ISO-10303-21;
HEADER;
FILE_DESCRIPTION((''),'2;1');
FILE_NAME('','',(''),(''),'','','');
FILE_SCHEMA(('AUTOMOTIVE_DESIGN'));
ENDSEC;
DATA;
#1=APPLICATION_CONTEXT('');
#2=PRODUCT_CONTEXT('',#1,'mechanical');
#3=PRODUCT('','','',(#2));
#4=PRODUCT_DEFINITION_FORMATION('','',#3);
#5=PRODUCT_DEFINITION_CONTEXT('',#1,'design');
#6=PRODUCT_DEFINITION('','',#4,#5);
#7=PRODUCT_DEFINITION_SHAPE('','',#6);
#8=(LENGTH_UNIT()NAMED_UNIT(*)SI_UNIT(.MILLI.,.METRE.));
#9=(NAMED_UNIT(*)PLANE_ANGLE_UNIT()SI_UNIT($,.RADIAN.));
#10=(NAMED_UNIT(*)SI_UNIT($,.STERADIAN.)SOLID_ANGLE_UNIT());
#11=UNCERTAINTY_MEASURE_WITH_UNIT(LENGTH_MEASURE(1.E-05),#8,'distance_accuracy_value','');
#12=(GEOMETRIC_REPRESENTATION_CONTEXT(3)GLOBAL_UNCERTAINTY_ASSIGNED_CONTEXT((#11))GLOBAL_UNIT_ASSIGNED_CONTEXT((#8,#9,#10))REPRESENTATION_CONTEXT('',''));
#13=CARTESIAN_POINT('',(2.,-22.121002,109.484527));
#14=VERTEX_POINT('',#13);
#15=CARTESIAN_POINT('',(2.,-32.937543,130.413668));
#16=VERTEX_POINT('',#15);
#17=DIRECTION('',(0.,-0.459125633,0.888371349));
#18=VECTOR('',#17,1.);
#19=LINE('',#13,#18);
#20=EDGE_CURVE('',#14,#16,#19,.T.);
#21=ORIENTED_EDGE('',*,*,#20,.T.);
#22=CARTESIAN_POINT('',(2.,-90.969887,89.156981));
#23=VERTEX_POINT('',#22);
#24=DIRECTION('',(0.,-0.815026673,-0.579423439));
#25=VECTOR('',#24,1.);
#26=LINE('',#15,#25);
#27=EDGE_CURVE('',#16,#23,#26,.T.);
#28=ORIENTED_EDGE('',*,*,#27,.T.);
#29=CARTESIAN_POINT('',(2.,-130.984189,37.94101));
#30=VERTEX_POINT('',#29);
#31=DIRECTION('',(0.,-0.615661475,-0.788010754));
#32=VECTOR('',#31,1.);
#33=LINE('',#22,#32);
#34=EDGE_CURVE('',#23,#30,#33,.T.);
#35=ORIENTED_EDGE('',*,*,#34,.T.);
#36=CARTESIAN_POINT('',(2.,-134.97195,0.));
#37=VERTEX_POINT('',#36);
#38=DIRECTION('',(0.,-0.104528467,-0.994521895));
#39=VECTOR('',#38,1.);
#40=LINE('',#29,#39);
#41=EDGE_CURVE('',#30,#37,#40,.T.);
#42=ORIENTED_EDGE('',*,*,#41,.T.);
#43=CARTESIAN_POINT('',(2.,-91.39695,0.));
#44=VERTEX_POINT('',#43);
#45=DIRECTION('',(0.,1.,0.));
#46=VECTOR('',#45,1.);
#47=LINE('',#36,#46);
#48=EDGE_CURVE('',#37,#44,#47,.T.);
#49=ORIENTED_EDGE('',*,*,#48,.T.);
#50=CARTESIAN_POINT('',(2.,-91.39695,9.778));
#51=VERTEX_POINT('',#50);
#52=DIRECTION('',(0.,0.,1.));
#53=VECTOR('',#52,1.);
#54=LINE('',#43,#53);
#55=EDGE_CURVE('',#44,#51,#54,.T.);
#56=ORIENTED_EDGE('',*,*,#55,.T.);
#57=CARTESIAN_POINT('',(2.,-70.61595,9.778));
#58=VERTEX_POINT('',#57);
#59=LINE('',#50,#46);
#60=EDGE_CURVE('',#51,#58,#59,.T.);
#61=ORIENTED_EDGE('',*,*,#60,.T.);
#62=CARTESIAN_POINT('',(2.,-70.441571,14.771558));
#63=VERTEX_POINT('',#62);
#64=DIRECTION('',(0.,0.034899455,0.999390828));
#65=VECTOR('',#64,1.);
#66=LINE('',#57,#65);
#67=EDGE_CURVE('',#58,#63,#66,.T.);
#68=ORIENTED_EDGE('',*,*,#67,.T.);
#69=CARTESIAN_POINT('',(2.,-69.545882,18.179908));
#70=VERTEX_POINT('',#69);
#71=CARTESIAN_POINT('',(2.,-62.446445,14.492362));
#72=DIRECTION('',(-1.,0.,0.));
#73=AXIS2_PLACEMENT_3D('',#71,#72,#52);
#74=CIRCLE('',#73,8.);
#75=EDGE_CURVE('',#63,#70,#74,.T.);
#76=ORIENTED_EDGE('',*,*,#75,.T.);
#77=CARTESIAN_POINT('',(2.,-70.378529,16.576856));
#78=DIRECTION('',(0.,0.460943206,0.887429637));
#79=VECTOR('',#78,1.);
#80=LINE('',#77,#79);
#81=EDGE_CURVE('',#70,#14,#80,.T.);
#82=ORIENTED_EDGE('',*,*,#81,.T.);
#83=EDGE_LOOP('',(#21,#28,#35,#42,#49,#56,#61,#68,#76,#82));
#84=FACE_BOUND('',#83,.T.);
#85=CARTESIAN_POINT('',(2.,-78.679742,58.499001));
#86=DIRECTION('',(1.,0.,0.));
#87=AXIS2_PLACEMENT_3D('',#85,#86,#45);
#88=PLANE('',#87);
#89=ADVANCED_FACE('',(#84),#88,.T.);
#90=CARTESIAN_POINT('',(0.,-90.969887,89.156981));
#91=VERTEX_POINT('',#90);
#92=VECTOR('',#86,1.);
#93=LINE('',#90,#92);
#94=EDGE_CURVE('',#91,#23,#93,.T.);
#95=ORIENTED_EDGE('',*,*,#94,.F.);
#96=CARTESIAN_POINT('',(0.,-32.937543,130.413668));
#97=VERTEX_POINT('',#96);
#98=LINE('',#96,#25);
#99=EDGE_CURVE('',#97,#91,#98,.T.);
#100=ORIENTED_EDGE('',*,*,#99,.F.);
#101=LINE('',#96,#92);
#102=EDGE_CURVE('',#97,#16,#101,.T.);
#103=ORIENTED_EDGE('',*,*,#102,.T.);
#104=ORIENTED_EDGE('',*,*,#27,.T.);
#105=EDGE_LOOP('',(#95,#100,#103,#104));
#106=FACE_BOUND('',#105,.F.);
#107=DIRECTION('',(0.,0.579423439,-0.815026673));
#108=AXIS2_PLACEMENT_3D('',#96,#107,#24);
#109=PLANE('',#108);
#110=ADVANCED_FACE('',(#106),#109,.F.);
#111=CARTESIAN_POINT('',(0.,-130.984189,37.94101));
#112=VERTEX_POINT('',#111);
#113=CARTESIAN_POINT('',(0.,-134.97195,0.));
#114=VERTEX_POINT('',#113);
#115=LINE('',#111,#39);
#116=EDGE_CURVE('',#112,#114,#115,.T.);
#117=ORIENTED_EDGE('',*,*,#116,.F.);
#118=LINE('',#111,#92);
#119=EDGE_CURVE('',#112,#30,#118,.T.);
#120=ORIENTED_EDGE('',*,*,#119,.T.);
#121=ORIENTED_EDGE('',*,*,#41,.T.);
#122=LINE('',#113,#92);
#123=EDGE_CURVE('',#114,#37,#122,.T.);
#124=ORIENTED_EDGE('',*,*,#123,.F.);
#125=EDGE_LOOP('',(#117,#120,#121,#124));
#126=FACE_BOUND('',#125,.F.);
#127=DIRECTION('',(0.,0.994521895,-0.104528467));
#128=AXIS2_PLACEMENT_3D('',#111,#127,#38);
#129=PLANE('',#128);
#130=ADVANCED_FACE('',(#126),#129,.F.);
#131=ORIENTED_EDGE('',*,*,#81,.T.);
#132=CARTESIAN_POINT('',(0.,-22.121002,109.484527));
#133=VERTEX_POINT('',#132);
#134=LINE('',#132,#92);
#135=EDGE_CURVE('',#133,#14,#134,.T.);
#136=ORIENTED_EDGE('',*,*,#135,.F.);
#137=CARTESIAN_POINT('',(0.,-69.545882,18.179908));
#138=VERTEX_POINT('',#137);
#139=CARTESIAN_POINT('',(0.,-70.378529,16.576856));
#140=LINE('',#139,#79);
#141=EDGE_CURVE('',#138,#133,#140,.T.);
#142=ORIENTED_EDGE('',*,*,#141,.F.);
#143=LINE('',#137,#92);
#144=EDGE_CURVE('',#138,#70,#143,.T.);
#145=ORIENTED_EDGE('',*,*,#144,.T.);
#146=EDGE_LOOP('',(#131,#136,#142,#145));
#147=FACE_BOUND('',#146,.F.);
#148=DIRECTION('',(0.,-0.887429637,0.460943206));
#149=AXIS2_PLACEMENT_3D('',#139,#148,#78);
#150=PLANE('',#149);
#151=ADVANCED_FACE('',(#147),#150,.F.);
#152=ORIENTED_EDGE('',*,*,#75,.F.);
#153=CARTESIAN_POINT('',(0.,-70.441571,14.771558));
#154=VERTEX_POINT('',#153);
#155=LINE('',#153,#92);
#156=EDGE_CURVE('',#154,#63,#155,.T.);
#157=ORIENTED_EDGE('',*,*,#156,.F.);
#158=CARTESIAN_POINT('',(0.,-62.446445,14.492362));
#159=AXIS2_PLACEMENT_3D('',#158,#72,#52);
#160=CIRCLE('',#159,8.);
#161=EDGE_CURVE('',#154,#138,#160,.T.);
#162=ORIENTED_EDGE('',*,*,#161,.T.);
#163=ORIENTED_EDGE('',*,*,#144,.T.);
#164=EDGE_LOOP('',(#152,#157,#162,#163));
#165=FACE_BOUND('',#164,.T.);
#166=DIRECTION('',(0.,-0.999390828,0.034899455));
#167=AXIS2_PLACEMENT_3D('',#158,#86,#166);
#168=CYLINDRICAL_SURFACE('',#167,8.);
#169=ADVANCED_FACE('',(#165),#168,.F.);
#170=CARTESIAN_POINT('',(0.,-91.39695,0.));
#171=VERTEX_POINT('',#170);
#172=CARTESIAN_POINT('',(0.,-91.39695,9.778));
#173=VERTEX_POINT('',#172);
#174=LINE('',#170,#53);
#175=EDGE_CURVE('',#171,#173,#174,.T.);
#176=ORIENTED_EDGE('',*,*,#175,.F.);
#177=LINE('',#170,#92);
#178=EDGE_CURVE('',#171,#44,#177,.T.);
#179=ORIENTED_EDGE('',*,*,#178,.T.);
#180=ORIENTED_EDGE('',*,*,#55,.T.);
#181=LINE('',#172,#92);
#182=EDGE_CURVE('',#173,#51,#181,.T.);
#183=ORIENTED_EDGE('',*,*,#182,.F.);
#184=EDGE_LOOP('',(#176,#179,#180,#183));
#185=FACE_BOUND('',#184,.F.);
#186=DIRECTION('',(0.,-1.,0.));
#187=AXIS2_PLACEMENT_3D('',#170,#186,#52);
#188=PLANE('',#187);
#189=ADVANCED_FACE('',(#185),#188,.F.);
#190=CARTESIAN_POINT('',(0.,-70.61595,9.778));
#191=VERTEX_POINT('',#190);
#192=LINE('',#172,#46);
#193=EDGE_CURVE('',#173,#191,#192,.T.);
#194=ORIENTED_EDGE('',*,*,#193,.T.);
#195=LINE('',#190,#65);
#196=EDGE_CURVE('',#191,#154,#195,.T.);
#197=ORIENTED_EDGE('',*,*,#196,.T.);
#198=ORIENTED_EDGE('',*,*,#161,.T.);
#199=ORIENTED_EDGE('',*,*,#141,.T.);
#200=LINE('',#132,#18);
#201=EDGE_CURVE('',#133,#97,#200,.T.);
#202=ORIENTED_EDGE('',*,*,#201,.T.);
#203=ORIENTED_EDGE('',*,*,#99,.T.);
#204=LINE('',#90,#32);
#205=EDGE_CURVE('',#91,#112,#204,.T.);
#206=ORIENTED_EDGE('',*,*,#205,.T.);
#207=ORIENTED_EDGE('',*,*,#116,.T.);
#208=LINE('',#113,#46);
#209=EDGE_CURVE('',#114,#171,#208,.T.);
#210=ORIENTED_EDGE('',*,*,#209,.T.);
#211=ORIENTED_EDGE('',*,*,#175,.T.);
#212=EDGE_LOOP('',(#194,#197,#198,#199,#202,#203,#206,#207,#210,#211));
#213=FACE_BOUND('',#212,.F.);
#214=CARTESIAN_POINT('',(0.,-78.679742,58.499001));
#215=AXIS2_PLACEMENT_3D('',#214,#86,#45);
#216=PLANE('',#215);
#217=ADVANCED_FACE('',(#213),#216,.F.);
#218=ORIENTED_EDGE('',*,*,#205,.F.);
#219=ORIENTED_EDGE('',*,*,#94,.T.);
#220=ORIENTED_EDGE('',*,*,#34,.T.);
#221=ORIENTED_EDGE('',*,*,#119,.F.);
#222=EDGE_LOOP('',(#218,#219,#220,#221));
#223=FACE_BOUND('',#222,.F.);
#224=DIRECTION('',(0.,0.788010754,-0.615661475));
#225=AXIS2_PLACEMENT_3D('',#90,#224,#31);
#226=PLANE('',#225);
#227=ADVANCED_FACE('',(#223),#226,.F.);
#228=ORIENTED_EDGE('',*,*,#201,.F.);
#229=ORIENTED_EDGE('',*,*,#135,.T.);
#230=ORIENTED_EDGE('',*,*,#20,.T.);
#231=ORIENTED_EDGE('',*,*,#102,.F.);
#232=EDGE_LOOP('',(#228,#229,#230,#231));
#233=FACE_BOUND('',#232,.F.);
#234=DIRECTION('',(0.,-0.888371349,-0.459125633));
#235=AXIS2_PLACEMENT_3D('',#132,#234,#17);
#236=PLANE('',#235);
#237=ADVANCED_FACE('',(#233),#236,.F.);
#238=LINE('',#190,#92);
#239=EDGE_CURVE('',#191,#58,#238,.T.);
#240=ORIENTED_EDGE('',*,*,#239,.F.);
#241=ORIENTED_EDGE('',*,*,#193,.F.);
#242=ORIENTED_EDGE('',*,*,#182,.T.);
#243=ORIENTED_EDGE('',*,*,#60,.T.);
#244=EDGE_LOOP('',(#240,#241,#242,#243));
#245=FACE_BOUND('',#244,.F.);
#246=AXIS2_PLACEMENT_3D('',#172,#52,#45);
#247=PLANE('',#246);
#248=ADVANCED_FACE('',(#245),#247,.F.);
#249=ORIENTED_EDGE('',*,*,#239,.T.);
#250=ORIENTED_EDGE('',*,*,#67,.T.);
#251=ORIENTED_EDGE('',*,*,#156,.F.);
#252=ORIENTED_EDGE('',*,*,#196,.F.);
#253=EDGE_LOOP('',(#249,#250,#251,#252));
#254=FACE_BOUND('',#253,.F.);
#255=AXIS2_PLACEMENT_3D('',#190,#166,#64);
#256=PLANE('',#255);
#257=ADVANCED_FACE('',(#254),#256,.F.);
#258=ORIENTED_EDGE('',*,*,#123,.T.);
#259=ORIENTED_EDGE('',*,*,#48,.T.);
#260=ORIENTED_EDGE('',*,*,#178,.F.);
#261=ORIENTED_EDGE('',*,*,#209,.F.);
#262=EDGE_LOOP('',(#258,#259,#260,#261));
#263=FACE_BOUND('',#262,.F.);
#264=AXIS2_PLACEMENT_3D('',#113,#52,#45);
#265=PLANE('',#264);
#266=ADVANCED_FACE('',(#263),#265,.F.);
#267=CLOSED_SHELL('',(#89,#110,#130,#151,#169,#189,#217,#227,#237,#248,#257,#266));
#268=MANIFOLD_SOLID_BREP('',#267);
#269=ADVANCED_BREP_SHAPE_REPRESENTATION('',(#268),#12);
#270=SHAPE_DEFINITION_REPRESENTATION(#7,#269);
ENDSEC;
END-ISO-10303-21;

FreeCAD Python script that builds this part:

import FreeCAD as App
import Part
import Sketcher

V = App.Vector
Q = App.Units.Quantity


def edges_at(feature, points):
    """Names of the edges that pass closest to the given points."""
    edges = feature.Shape.Edges
    near = lambda p: min(range(len(edges)), key=lambda i: edges[i].distToShape(Part.Vertex(*p))[0])
    return sorted({f"Edge{near(p) + 1}" for p in points})


def add_polygon(sketch, points):
    """Adds a closed chain of lines whose ends are joined by coincident constraints."""
    first, n = sketch.GeometryCount, len(points)
    for a, b in zip(points, points[1:] + points[:1]):
        sketch.addGeometry(Part.LineSegment(App.Vector(*a, 0), App.Vector(*b, 0)), False)
    for i in range(n):
        sketch.addConstraint(Sketcher.Constraint("Coincident", first + i, 2, first + (i + 1) % n, 1))

doc = App.newDocument("Part")
body = doc.addObject("PartDesign::Body", "Body")

# Sketch on YZ plane
sketch1 = body.newObject("Sketcher::SketchObject", "Sketch")
sketch1.AttachmentSupport = (doc.getObject("YZ_Plane"), [""])
sketch1.MapMode = "FlatFace"
add_polygon(sketch1, [(-131, 38), (-135, 0), (-91, 0), (-91, 10), (-71, 10), (-70, 17), (-22, 109), (-33, 130), (-91, 89)])  # lines 0-8
sketch1.addConstraint([
    Sketcher.Constraint("Horizontal", 1),
    Sketcher.Constraint("Vertical", 2),
    Sketcher.Constraint("Horizontal", 3),
    Sketcher.Constraint("PointOnObject", 0, 2, -1),
    Sketcher.Constraint("Angle", 0, Q("-96 deg")),
    Sketcher.Constraint("Angle", 4, Q("88.000002 deg")),
    Sketcher.Constraint("Angle", 8, Q("-128 deg")),
    Sketcher.Constraint("Angle", 7, Q("-144.589999 deg")),
    Sketcher.Constraint("Distance", 0, Q("38.15 mm")),
    Sketcher.Constraint("DistanceX", 1, 1, 1, 2, Q("43.575 mm")),
    Sketcher.Constraint("DistanceX", 3, 1, 3, 2, Q("20.781 mm")),
    Sketcher.Constraint("DistanceY", 2, 1, 2, 2, Q("9.778 mm")),
    Sketcher.Constraint("Distance", 4, Q("6.803 mm")),
    Sketcher.Constraint("Distance", 5, Q("104.693 mm")),
    Sketcher.Constraint("Distance", 6, Q("23.559 mm")),
    Sketcher.Constraint("Distance", 7, Q("71.203 mm")),
    Sketcher.Constraint("Distance", 8, Q("64.994 mm")),
    Sketcher.Constraint("DistanceX", 0, 2, -1, 1, Q("134.97195 mm")),
])
pad1 = body.newObject("PartDesign::Pad", "Pad")
pad1.Profile = sketch1
pad1.Length = 2
doc.recompute()

fillet = body.newObject("PartDesign::Fillet", "Fillet")
fillet.Base = (pad1, edges_at(pad1, [(1, -70.379, 16.577)]))
fillet.Radius = 8

doc.recompute()
